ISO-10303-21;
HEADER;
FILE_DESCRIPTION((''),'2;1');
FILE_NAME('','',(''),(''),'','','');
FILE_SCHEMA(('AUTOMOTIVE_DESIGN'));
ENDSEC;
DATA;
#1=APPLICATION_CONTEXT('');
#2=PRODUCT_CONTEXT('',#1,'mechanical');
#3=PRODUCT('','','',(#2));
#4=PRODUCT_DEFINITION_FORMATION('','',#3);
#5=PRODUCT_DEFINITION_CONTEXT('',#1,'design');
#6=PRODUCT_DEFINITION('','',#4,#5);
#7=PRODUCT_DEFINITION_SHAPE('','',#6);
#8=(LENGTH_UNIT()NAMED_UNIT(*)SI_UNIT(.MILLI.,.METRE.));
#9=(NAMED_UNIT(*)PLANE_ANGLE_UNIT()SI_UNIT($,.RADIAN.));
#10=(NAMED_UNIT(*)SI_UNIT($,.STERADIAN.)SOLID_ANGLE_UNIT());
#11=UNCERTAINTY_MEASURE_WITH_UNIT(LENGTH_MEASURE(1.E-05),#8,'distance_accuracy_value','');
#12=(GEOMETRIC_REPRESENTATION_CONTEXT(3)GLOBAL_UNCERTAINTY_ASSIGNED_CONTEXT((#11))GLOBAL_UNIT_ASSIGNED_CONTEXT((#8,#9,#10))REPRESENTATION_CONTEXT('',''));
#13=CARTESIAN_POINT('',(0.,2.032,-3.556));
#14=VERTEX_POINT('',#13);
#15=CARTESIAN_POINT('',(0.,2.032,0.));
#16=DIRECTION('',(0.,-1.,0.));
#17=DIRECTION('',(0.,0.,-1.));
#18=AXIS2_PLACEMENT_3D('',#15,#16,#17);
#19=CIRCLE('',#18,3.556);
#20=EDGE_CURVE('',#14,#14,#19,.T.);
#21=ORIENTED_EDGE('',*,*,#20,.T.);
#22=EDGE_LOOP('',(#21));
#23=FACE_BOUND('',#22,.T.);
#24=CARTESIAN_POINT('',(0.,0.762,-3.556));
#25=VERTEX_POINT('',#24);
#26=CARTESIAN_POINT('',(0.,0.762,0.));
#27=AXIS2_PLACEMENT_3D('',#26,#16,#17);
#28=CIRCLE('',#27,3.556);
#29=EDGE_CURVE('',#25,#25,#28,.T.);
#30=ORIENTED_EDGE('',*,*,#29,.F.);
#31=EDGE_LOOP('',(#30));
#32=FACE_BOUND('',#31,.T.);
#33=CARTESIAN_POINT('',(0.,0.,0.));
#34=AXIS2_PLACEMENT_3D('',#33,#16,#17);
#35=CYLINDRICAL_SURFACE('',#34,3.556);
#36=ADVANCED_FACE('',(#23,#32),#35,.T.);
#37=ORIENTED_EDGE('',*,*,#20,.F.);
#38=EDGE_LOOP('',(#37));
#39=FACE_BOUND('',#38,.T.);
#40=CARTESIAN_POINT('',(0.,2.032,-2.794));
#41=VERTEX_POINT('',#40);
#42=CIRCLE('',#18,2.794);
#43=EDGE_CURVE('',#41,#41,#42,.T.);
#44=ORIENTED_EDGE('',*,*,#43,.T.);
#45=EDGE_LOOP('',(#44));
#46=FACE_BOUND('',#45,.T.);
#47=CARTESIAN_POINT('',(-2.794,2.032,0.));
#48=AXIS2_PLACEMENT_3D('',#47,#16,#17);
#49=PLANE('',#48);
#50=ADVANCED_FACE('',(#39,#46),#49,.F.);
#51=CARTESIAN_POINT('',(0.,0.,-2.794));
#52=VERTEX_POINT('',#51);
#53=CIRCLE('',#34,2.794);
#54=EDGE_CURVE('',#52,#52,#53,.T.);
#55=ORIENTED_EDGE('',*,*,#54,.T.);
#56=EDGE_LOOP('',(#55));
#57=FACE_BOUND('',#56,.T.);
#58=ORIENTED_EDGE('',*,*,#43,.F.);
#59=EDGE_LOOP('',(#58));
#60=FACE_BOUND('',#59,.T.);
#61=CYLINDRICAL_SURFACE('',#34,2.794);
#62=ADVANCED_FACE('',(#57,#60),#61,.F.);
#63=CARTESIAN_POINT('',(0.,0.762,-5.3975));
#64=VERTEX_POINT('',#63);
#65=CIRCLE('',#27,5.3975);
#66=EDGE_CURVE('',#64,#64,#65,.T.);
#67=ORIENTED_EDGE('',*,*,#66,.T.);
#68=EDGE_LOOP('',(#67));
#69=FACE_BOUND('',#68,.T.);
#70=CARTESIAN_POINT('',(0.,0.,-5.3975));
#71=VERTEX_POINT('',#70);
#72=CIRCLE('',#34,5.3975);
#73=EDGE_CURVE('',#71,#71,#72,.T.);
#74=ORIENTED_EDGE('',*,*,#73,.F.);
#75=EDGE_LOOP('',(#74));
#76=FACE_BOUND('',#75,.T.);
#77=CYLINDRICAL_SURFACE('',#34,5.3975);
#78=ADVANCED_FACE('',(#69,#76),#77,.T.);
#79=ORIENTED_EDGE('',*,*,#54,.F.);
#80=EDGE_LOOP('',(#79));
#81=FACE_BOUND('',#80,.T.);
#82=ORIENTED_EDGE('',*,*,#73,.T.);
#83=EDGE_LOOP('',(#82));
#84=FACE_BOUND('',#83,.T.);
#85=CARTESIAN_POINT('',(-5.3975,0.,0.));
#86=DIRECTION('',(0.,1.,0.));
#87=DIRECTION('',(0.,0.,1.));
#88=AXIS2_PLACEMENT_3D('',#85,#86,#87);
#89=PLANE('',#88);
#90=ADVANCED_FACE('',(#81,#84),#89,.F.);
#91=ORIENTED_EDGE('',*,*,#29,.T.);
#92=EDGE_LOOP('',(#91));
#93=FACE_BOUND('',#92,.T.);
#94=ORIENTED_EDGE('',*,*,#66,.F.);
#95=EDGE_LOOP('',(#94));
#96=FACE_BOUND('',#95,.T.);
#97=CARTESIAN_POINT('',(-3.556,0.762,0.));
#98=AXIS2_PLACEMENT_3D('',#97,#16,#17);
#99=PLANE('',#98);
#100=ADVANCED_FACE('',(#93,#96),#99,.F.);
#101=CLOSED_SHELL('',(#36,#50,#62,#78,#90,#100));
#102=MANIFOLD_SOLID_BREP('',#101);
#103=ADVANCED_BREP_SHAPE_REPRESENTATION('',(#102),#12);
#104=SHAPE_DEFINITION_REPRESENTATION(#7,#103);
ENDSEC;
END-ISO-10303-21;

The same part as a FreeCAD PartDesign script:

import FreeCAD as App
import Part
import Sketcher

V = App.Vector
Q = App.Units.Quantity


def add_polygon(sketch, points):
    """Adds a closed chain of lines whose ends are joined by coincident constraints."""
    first, n = sketch.GeometryCount, len(points)
    for a, b in zip(points, points[1:] + points[:1]):
        sketch.addGeometry(Part.LineSegment(App.Vector(*a, 0), App.Vector(*b, 0)), False)
    for i in range(n):
        sketch.addConstraint(Sketcher.Constraint("Coincident", first + i, 2, first + (i + 1) % n, 1))

doc = App.newDocument("Part")
params = doc.addObject("Spreadsheet::Sheet", "Params")
for row, (alias, value) in enumerate([
    ("sketch1_width", "0.03 in"),
    ("sketch1_height", "0.08 in"),
    ("revolution_angle", "360 deg"),
], start=1):
    params.set(f"A{row}", alias)
    params.set(f"B{row}", "=" + value)
    params.setAlias(f"B{row}", alias)

body = doc.addObject("PartDesign::Body", "Body")

# Sketch on XY plane
sketch1 = body.newObject("Sketcher::SketchObject", "Sketch")
sketch1.AttachmentSupport = (doc.getObject("XY_Plane"), [""])
sketch1.MapMode = "FlatFace"
add_polygon(sketch1, [(-2.8, 0), (-2.8, 2), (-3.6, 2), (-3.6, 0.8), (-5.4, 0.8), (-5.4, 0)])  # lines 0-5
sketch1.addConstraint([
    Sketcher.Constraint("Vertical", 0),
    Sketcher.Constraint("Horizontal", 1),
    Sketcher.Constraint("Vertical", 2),
    Sketcher.Constraint("Horizontal", 3),
    Sketcher.Constraint("Vertical", 4),
    Sketcher.Constraint("Horizontal", 5),
    Sketcher.Constraint("PointOnObject", 4, 2, -1),
    Sketcher.Constraint("Equal", 1, 4),
    Sketcher.Constraint("DistanceX", 1, 2, 1, 1, Q("0.03 in")),
    Sketcher.Constraint("DistanceY", 0, 1, 0, 2, Q("0.08 in")),
    Sketcher.Constraint("DistanceX", 0, 2, -1, 1, Q("0.11 in")),
    Sketcher.Constraint("DistanceX", 3, 2, 3, 1, Q("0.0725 in")),
])
sketch1.setExpression("Constraints[14]", "Params.sketch1_width")
sketch1.setExpression("Constraints[15]", "Params.sketch1_height")
revolution = body.newObject("PartDesign::Revolution", "Revolution")
revolution.Profile = sketch1
revolution.ReferenceAxis = (sketch1, ["V_Axis"])
revolution.setExpression("Angle", "Params.revolution_angle")

doc.recompute()
